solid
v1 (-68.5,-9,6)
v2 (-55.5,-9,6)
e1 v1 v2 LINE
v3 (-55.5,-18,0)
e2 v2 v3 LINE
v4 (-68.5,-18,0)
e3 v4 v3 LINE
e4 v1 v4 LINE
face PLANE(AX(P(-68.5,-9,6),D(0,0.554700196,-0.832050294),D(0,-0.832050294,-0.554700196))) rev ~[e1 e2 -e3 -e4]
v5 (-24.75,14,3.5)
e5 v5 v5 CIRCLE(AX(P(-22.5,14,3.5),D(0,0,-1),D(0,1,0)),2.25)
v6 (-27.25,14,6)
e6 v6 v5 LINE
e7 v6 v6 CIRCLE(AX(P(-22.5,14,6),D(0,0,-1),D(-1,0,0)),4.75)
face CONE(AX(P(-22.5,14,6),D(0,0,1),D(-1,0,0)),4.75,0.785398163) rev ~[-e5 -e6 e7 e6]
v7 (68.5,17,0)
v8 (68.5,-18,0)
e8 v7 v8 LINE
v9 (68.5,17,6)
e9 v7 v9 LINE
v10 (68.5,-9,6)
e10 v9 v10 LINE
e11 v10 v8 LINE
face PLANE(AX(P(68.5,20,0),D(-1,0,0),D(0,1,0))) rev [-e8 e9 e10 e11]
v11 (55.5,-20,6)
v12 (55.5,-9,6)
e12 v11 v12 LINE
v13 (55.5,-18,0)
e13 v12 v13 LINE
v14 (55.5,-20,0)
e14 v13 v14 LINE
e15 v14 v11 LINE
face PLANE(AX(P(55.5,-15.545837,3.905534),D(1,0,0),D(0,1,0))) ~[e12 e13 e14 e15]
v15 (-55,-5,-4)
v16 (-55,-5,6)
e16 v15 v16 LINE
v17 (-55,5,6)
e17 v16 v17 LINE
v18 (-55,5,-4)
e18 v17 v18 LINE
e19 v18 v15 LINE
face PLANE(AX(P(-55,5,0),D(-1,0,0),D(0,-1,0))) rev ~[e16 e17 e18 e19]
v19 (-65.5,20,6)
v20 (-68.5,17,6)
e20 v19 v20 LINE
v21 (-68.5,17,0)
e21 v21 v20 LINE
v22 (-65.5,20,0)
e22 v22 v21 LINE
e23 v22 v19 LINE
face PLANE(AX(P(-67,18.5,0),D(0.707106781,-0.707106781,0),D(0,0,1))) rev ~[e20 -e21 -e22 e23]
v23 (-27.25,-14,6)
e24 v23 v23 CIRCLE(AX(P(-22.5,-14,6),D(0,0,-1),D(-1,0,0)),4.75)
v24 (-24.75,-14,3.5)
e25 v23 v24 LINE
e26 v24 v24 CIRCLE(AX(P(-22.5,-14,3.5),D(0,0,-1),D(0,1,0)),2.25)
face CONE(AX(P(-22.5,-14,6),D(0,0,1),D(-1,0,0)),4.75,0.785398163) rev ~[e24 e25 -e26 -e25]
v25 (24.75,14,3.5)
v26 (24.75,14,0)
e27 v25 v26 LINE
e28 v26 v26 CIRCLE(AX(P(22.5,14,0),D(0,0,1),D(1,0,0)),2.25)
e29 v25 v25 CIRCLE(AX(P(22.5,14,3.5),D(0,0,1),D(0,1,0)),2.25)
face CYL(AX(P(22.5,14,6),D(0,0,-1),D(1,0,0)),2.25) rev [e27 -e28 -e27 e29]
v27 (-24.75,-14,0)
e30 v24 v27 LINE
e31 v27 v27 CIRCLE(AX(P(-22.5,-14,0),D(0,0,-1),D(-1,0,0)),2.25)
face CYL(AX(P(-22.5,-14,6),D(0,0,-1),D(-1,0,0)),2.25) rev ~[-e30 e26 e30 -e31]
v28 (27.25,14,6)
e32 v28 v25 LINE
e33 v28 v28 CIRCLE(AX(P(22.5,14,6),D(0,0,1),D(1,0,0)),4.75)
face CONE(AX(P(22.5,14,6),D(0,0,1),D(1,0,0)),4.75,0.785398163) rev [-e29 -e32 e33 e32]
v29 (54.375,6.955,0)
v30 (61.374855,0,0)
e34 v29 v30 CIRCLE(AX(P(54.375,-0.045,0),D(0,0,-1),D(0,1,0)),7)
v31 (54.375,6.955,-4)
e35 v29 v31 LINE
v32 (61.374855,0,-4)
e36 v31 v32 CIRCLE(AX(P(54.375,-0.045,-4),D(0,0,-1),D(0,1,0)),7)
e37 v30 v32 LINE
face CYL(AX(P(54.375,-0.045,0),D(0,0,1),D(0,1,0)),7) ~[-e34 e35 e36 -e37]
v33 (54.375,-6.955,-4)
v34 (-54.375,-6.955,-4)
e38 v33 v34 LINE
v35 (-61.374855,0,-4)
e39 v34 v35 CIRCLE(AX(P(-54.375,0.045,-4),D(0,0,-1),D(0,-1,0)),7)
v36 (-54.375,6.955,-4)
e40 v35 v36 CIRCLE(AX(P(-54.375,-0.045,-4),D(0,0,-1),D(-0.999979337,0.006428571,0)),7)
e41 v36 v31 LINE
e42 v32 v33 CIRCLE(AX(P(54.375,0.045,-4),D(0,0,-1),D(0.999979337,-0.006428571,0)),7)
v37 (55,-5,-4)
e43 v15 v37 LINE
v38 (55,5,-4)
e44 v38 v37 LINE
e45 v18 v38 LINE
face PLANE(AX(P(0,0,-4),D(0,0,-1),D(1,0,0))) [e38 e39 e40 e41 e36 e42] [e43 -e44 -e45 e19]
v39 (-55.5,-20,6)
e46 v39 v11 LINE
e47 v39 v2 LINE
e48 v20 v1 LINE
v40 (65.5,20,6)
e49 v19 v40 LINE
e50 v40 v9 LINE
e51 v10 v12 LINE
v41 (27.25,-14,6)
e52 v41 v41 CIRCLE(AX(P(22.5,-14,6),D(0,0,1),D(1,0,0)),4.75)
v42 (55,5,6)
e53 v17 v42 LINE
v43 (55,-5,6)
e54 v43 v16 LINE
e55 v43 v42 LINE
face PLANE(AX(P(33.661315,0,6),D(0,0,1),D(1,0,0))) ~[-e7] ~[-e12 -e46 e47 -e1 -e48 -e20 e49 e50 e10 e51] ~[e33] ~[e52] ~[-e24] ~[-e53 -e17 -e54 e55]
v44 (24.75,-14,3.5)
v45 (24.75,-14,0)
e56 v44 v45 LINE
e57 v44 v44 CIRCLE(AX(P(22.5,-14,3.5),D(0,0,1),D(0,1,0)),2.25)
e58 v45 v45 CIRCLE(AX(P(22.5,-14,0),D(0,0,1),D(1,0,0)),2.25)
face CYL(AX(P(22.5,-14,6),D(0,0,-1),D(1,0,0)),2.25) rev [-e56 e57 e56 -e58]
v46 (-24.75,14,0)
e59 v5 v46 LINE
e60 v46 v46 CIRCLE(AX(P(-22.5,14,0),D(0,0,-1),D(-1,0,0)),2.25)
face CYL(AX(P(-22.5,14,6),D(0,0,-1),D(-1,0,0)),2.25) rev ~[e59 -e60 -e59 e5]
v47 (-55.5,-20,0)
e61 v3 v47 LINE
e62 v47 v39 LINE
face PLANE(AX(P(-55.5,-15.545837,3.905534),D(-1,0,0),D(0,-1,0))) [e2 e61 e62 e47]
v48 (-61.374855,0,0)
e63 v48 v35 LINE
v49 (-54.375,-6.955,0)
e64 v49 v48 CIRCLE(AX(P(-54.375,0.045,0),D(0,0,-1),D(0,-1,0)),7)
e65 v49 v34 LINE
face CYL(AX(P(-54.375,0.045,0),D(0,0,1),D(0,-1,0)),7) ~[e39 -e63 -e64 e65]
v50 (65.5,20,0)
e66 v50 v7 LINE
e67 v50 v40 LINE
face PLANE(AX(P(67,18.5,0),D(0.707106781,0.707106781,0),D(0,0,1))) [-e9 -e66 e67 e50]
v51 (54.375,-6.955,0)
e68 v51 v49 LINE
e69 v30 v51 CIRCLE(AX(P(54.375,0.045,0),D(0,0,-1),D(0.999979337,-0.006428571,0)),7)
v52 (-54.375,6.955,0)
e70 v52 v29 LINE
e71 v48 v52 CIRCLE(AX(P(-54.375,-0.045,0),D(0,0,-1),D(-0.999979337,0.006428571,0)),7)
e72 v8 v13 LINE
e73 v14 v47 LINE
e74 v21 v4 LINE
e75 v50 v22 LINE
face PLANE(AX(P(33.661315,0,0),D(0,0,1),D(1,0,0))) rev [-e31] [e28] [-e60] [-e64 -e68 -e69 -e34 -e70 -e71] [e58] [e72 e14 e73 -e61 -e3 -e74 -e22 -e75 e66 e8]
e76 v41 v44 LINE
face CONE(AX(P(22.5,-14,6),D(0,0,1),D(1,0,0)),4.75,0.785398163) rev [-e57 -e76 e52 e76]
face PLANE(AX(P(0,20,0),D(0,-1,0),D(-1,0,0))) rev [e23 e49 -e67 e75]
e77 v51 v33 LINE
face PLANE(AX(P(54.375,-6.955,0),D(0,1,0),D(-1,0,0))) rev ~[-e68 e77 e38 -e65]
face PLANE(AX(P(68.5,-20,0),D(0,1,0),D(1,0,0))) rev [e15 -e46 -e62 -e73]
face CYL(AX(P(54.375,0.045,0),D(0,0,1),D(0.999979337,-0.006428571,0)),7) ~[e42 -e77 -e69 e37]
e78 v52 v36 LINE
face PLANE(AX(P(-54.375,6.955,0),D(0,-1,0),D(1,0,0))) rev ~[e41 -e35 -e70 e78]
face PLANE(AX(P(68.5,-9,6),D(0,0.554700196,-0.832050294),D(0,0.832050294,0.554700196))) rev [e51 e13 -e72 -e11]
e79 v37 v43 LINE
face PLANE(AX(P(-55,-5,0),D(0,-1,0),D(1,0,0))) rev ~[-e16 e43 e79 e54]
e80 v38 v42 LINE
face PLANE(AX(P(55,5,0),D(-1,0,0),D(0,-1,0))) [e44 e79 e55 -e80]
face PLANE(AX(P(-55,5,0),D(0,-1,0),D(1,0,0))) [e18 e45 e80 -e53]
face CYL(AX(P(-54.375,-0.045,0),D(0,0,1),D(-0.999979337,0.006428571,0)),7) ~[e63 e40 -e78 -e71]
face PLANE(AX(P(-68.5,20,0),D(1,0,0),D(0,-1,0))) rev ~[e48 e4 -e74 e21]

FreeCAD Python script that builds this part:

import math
import FreeCAD as App
import Part
import Sketcher


def edges_at(feature, points):
    """Names of the edges that pass closest to the given points."""
    edges = feature.Shape.Edges
    near = lambda p: min(range(len(edges)), key=lambda i: edges[i].distToShape(Part.Vertex(*p))[0])
    return sorted({f"Edge{near(p) + 1}" for p in points})

doc = App.newDocument("Part")
body = doc.addObject("PartDesign::Body", "Body")

# Sketch on XY plane
sketch1 = doc.addObject("Sketcher::SketchObject", "Sketch")
body.addObject(sketch1)
sketch1.AttachmentSupport = (doc.XY_Plane, [""])
sketch1.MapMode = "FlatFace"
sketch1.addGeometry(Part.LineSegment(App.Vector(0, 20, 0), App.Vector(-68.5, 20, 0)), False)
sketch1.addGeometry(Part.LineSegment(App.Vector(-68.5, 20, 0), App.Vector(-68.5, -20, 0)), False)
sketch1.addGeometry(Part.LineSegment(App.Vector(-68.5, -20, 0), App.Vector(0, -20, 0)), False)
sketch1.addGeometry(Part.LineSegment(App.Vector(0, -20, 0), App.Vector(0, -5, 0)), False)
sketch1.addGeometry(Part.LineSegment(App.Vector(0, -5, 0), App.Vector(-55, -5, 0)), False)
sketch1.addGeometry(Part.LineSegment(App.Vector(-55, -5, 0), App.Vector(-55, 5, 0)), False)
sketch1.addGeometry(Part.LineSegment(App.Vector(-55, 5, 0), App.Vector(0, 5, 0)), False)
sketch1.addGeometry(Part.LineSegment(App.Vector(0, 5, 0), App.Vector(0, 20, 0)), False)
sketch1.addConstraint(Sketcher.Constraint("Coincident", 0, 2, 1, 1))
sketch1.addConstraint(Sketcher.Constraint("Coincident", 1, 2, 2, 1))
sketch1.addConstraint(Sketcher.Constraint("Coincident", 2, 2, 3, 1))
sketch1.addConstraint(Sketcher.Constraint("Coincident", 3, 2, 4, 1))
sketch1.addConstraint(Sketcher.Constraint("Coincident", 4, 2, 5, 1))
sketch1.addConstraint(Sketcher.Constraint("Coincident", 5, 2, 6, 1))
sketch1.addConstraint(Sketcher.Constraint("Coincident", 6, 2, 7, 1))
sketch1.addConstraint(Sketcher.Constraint("Coincident", 7, 2, 0, 1))
sketch1.addConstraint(Sketcher.Constraint("Horizontal", 0))
sketch1.addConstraint(Sketcher.Constraint("Vertical", 1))
sketch1.addConstraint(Sketcher.Constraint("Horizontal", 2))
sketch1.addConstraint(Sketcher.Constraint("Vertical", 3))
sketch1.addConstraint(Sketcher.Constraint("Horizontal", 4))
sketch1.addConstraint(Sketcher.Constraint("Vertical", 5))
sketch1.addConstraint(Sketcher.Constraint("Horizontal", 6))
sketch1.addConstraint(Sketcher.Constraint("Vertical", 7))
sketch1.addConstraint(Sketcher.Constraint("Symmetric", 3, 2, 6, 2, -1, 1))
sketch1.addConstraint(Sketcher.Constraint("Symmetric", 2, 2, 7, 2, -1))
sketch1.addConstraint(Sketcher.Constraint("DistanceX", 4, 2, 4, 1, 55.0))
sketch1.addConstraint(Sketcher.Constraint("DistanceY", 1, 2, 1, 1, 40.0))
sketch1.addConstraint(Sketcher.Constraint("DistanceY", 3, 1, 3, 2, 15.0))
sketch1.addConstraint(Sketcher.Constraint("DistanceX", 0, 2, 0, 1, 68.5))
pad1 = doc.addObject("PartDesign::Pad", "Pad")
body.addObject(pad1)
pad1.Profile = sketch1
pad1.Length = 6

# Sketch on YZ plane
sketch2 = doc.addObject("Sketcher::SketchObject", "Sketch001")
body.addObject(sketch2)
sketch2.AttachmentSupport = (doc.YZ_Plane, [""])
sketch2.MapMode = "FlatFace"
sketch2.AttachmentOffset = App.Placement(App.Vector(0, 0, -68.5), App.Rotation())
sketch2.addGeometry(Part.LineSegment(App.Vector(-20, 0, 0), App.Vector(-20, 6, 0)), False)
sketch2.addGeometry(Part.LineSegment(App.Vector(-20, 6, 0), App.Vector(-9, 6, 0)), False)
sketch2.addGeometry(Part.LineSegment(App.Vector(-9, 6, 0), App.Vector(-18, 0, 0)), False)
sketch2.addGeometry(Part.LineSegment(App.Vector(-18, 0, 0), App.Vector(-20, 0, 0)), False)
sketch2.addConstraint(Sketcher.Constraint("Coincident", 0, 2, 1, 1))
sketch2.addConstraint(Sketcher.Constraint("Coincident", 1, 2, 2, 1))
sketch2.addConstraint(Sketcher.Constraint("Coincident", 2, 2, 3, 1))
sketch2.addConstraint(Sketcher.Constraint("Coincident", 3, 2, 0, 1))
sketch2.addConstraint(Sketcher.Constraint("Vertical", 0))
sketch2.addConstraint(Sketcher.Constraint("Horizontal", 1))
sketch2.addConstraint(Sketcher.Constraint("Horizontal", 3))
sketch2.addConstraint(Sketcher.Constraint("PointOnObject", 2, 2, -1))
sketch2.addConstraint(Sketcher.Constraint("DistanceX", 1, 1, 1, 2, 11.0))
sketch2.addConstraint(Sketcher.Constraint("DistanceX", 3, 2, 3, 1, 2.0))
sketch2.addConstraint(Sketcher.Constraint("DistanceY", 0, 1, 0, 2, 6.0))
sketch2.addConstraint(Sketcher.Constraint("DistanceX", 0, 2, -1, 1, 20.0))
pocket1 = doc.addObject("PartDesign::Pocket", "Pocket")
body.addObject(pocket1)
pocket1.Profile = sketch2
pocket1.Length = 13
pocket1.Reversed = True

# Sketch on XY plane
sketch3 = doc.addObject("Sketcher::SketchObject", "Sketch002")
body.addObject(sketch3)
sketch3.AttachmentSupport = (doc.XY_Plane, [""])
sketch3.MapMode = "FlatFace"
sketch3.AttachmentOffset = App.Placement(App.Vector(0, 0, 6), App.Rotation())
sketch3.addGeometry(Part.Circle(App.Vector(-22.5, 14, 0), App.Vector(0, 0, 1), 2.25), False)
sketch3.addGeometry(Part.Circle(App.Vector(-22.5, -14, 0), App.Vector(0, 0, 1), 2.25), False)
sketch3.addConstraint(Sketcher.Constraint("Equal", 0, 1))
sketch3.addConstraint(Sketcher.Constraint("Symmetric", 0, 3, 1, 3, -1))
sketch3.addConstraint(Sketcher.Constraint("Diameter", 0, 4.5))
sketch3.addConstraint(Sketcher.Constraint("DistanceY", -1, 1, 0, 3, 14.0))
sketch3.addConstraint(Sketcher.Constraint("DistanceX", 0, 3, -1, 1, 22.5))
doc.recompute()
hole = doc.addObject("PartDesign::Hole", "Hole")
body.addObject(hole)
hole.Profile = sketch3
hole.ThreadType = "None"
hole.Diameter = 4.5
hole.DepthType = "ThroughAll"
hole.HoleCutType = "Countersink"
hole.HoleCutDiameter = 9.5
hole.HoleCutCountersinkAngle = 90
body2 = doc.addObject("PartDesign::Body", "Body001")
doc.recompute()

body2.BaseFeature = body
doc.recompute()

mirroring = doc.addObject("Part::Mirroring", "Mirroring")
mirroring.Source = body
mirroring.Base = App.Vector(0, 0, 0)
mirroring.Normal = App.Vector(1, 0, 0)
body3 = doc.addObject("PartDesign::Body", "Body002")
body3.BaseFeature = mirroring
boolean = doc.addObject("PartDesign::Boolean", "Boolean")
body2.addObject(boolean)
boolean.Type = "Fuse"
boolean.addObjects([body3])
doc.recompute()

# Sketch on XY plane
sketch4 = doc.addObject("Sketcher::SketchObject", "Sketch003")
body2.addObject(sketch4)
sketch4.AttachmentSupport = (doc.getObject("XY_Plane001"), [""])
sketch4.MapMode = "FlatFace"
sketch4.addGeometry(Part.LineSegment(App.Vector(54.375, -6.955, 0), App.Vector(-54.375, -6.955, 0)), False)
sketch4.addGeometry(Part.ArcOfCircle(Part.Circle(App.Vector(-54.375, 0.045, 0), App.Vector(0, 0, 1), 7), math.radians(-179.631667), math.radians(-90)), False)
sketch4.addGeometry(Part.ArcOfCircle(Part.Circle(App.Vector(-54.375, -0.045, 0), App.Vector(0, 0, 1), 7), math.radians(90), math.radians(179.631667)), False)
sketch4.addGeometry(Part.LineSegment(App.Vector(-54.375, 6.955, 0), App.Vector(54.375, 6.955, 0)), False)
sketch4.addGeometry(Part.ArcOfCircle(Part.Circle(App.Vector(54.375, -0.045, 0), App.Vector(0, 0, 1), 7), math.radians(0.368333), math.radians(90)), False)
sketch4.addGeometry(Part.ArcOfCircle(Part.Circle(App.Vector(54.375, 0.045, 0), App.Vector(0, 0, 1), 7), math.radians(-90), math.radians(-0.368333)), False)
sketch4.addGeometry(Part.LineSegment(App.Vector(55, 5, 0), App.Vector(-55, 5, 0)), False)
sketch4.addGeometry(Part.LineSegment(App.Vector(-55, 5, 0), App.Vector(-55, -5, 0)), False)
sketch4.addGeometry(Part.LineSegment(App.Vector(-55, -5, 0), App.Vector(55, -5, 0)), False)
sketch4.addGeometry(Part.LineSegment(App.Vector(55, -5, 0), App.Vector(55, 5, 0)), False)
sketch4.addConstraint(Sketcher.Constraint("Tangent", 0, 2, 1, 2))
sketch4.addConstraint(Sketcher.Constraint("Coincident", 1, 1, 2, 2))
sketch4.addConstraint(Sketcher.Constraint("Tangent", 2, 1, 3, 1))
sketch4.addConstraint(Sketcher.Constraint("Tangent", 3, 2, 4, 2))
sketch4.addConstraint(Sketcher.Constraint("Coincident", 4, 1, 5, 2))
sketch4.addConstraint(Sketcher.Constraint("Tangent", 5, 1, 0, 1))
sketch4.addConstraint(Sketcher.Constraint("Coincident", 6, 2, 7, 1))
sketch4.addConstraint(Sketcher.Constraint("Coincident", 7, 2, 8, 1))
sketch4.addConstraint(Sketcher.Constraint("Coincident", 8, 2, 9, 1))
sketch4.addConstraint(Sketcher.Constraint("Coincident", 9, 2, 6, 1))
sketch4.addConstraint(Sketcher.Constraint("Horizontal", 0))
sketch4.addConstraint(Sketcher.Constraint("Horizontal", 3))
sketch4.addConstraint(Sketcher.Constraint("Horizontal", 6))
sketch4.addConstraint(Sketcher.Constraint("Vertical", 7))
sketch4.addConstraint(Sketcher.Constraint("Horizontal", 8))
sketch4.addConstraint(Sketcher.Constraint("Vertical", 9))
sketch4.addConstraint(Sketcher.Constraint("Equal", 1, 2))
sketch4.addConstraint(Sketcher.Constraint("Equal", 2, 4))
sketch4.addConstraint(Sketcher.Constraint("Equal", 4, 5))
sketch4.addConstraint(Sketcher.Constraint("Symmetric", 1, 3, 4, 3, -1, 1))
sketch4.addConstraint(Sketcher.Constraint("Symmetric", 6, 2, 8, 2, -1, 1))
sketch4.addConstraint(Sketcher.Constraint("Symmetric", 1, 1, 4, 1, -2))
sketch4.addConstraint(Sketcher.Constraint("Radius", 1, 7.0))
sketch4.addConstraint(Sketcher.Constraint("DistanceX", 6, 2, 6, 1, 110.0))
sketch4.addConstraint(Sketcher.Constraint("DistanceY", 7, 2, 7, 1, 10.0))
sketch4.addConstraint(Sketcher.Constraint("DistanceX", 0, 2, 0, 1, 108.75))
sketch4.addConstraint(Sketcher.Constraint("DistanceY", 2, 3, 1, 3, 0.09))
pad2 = doc.addObject("PartDesign::Pad", "Pad001")
body2.addObject(pad2)
pad2.Profile = sketch4
pad2.Length = 4
pad2.Reversed = True
doc.recompute()

chamfer = doc.addObject("PartDesign::Chamfer", "Chamfer")
body2.addObject(chamfer)
chamfer.Base = (pad2, edges_at(pad2, [(-68.5, 20, 3), (68.5, 20, 3)]))
chamfer.Size = 3
mirroring.Visibility = False

doc.recompute()
